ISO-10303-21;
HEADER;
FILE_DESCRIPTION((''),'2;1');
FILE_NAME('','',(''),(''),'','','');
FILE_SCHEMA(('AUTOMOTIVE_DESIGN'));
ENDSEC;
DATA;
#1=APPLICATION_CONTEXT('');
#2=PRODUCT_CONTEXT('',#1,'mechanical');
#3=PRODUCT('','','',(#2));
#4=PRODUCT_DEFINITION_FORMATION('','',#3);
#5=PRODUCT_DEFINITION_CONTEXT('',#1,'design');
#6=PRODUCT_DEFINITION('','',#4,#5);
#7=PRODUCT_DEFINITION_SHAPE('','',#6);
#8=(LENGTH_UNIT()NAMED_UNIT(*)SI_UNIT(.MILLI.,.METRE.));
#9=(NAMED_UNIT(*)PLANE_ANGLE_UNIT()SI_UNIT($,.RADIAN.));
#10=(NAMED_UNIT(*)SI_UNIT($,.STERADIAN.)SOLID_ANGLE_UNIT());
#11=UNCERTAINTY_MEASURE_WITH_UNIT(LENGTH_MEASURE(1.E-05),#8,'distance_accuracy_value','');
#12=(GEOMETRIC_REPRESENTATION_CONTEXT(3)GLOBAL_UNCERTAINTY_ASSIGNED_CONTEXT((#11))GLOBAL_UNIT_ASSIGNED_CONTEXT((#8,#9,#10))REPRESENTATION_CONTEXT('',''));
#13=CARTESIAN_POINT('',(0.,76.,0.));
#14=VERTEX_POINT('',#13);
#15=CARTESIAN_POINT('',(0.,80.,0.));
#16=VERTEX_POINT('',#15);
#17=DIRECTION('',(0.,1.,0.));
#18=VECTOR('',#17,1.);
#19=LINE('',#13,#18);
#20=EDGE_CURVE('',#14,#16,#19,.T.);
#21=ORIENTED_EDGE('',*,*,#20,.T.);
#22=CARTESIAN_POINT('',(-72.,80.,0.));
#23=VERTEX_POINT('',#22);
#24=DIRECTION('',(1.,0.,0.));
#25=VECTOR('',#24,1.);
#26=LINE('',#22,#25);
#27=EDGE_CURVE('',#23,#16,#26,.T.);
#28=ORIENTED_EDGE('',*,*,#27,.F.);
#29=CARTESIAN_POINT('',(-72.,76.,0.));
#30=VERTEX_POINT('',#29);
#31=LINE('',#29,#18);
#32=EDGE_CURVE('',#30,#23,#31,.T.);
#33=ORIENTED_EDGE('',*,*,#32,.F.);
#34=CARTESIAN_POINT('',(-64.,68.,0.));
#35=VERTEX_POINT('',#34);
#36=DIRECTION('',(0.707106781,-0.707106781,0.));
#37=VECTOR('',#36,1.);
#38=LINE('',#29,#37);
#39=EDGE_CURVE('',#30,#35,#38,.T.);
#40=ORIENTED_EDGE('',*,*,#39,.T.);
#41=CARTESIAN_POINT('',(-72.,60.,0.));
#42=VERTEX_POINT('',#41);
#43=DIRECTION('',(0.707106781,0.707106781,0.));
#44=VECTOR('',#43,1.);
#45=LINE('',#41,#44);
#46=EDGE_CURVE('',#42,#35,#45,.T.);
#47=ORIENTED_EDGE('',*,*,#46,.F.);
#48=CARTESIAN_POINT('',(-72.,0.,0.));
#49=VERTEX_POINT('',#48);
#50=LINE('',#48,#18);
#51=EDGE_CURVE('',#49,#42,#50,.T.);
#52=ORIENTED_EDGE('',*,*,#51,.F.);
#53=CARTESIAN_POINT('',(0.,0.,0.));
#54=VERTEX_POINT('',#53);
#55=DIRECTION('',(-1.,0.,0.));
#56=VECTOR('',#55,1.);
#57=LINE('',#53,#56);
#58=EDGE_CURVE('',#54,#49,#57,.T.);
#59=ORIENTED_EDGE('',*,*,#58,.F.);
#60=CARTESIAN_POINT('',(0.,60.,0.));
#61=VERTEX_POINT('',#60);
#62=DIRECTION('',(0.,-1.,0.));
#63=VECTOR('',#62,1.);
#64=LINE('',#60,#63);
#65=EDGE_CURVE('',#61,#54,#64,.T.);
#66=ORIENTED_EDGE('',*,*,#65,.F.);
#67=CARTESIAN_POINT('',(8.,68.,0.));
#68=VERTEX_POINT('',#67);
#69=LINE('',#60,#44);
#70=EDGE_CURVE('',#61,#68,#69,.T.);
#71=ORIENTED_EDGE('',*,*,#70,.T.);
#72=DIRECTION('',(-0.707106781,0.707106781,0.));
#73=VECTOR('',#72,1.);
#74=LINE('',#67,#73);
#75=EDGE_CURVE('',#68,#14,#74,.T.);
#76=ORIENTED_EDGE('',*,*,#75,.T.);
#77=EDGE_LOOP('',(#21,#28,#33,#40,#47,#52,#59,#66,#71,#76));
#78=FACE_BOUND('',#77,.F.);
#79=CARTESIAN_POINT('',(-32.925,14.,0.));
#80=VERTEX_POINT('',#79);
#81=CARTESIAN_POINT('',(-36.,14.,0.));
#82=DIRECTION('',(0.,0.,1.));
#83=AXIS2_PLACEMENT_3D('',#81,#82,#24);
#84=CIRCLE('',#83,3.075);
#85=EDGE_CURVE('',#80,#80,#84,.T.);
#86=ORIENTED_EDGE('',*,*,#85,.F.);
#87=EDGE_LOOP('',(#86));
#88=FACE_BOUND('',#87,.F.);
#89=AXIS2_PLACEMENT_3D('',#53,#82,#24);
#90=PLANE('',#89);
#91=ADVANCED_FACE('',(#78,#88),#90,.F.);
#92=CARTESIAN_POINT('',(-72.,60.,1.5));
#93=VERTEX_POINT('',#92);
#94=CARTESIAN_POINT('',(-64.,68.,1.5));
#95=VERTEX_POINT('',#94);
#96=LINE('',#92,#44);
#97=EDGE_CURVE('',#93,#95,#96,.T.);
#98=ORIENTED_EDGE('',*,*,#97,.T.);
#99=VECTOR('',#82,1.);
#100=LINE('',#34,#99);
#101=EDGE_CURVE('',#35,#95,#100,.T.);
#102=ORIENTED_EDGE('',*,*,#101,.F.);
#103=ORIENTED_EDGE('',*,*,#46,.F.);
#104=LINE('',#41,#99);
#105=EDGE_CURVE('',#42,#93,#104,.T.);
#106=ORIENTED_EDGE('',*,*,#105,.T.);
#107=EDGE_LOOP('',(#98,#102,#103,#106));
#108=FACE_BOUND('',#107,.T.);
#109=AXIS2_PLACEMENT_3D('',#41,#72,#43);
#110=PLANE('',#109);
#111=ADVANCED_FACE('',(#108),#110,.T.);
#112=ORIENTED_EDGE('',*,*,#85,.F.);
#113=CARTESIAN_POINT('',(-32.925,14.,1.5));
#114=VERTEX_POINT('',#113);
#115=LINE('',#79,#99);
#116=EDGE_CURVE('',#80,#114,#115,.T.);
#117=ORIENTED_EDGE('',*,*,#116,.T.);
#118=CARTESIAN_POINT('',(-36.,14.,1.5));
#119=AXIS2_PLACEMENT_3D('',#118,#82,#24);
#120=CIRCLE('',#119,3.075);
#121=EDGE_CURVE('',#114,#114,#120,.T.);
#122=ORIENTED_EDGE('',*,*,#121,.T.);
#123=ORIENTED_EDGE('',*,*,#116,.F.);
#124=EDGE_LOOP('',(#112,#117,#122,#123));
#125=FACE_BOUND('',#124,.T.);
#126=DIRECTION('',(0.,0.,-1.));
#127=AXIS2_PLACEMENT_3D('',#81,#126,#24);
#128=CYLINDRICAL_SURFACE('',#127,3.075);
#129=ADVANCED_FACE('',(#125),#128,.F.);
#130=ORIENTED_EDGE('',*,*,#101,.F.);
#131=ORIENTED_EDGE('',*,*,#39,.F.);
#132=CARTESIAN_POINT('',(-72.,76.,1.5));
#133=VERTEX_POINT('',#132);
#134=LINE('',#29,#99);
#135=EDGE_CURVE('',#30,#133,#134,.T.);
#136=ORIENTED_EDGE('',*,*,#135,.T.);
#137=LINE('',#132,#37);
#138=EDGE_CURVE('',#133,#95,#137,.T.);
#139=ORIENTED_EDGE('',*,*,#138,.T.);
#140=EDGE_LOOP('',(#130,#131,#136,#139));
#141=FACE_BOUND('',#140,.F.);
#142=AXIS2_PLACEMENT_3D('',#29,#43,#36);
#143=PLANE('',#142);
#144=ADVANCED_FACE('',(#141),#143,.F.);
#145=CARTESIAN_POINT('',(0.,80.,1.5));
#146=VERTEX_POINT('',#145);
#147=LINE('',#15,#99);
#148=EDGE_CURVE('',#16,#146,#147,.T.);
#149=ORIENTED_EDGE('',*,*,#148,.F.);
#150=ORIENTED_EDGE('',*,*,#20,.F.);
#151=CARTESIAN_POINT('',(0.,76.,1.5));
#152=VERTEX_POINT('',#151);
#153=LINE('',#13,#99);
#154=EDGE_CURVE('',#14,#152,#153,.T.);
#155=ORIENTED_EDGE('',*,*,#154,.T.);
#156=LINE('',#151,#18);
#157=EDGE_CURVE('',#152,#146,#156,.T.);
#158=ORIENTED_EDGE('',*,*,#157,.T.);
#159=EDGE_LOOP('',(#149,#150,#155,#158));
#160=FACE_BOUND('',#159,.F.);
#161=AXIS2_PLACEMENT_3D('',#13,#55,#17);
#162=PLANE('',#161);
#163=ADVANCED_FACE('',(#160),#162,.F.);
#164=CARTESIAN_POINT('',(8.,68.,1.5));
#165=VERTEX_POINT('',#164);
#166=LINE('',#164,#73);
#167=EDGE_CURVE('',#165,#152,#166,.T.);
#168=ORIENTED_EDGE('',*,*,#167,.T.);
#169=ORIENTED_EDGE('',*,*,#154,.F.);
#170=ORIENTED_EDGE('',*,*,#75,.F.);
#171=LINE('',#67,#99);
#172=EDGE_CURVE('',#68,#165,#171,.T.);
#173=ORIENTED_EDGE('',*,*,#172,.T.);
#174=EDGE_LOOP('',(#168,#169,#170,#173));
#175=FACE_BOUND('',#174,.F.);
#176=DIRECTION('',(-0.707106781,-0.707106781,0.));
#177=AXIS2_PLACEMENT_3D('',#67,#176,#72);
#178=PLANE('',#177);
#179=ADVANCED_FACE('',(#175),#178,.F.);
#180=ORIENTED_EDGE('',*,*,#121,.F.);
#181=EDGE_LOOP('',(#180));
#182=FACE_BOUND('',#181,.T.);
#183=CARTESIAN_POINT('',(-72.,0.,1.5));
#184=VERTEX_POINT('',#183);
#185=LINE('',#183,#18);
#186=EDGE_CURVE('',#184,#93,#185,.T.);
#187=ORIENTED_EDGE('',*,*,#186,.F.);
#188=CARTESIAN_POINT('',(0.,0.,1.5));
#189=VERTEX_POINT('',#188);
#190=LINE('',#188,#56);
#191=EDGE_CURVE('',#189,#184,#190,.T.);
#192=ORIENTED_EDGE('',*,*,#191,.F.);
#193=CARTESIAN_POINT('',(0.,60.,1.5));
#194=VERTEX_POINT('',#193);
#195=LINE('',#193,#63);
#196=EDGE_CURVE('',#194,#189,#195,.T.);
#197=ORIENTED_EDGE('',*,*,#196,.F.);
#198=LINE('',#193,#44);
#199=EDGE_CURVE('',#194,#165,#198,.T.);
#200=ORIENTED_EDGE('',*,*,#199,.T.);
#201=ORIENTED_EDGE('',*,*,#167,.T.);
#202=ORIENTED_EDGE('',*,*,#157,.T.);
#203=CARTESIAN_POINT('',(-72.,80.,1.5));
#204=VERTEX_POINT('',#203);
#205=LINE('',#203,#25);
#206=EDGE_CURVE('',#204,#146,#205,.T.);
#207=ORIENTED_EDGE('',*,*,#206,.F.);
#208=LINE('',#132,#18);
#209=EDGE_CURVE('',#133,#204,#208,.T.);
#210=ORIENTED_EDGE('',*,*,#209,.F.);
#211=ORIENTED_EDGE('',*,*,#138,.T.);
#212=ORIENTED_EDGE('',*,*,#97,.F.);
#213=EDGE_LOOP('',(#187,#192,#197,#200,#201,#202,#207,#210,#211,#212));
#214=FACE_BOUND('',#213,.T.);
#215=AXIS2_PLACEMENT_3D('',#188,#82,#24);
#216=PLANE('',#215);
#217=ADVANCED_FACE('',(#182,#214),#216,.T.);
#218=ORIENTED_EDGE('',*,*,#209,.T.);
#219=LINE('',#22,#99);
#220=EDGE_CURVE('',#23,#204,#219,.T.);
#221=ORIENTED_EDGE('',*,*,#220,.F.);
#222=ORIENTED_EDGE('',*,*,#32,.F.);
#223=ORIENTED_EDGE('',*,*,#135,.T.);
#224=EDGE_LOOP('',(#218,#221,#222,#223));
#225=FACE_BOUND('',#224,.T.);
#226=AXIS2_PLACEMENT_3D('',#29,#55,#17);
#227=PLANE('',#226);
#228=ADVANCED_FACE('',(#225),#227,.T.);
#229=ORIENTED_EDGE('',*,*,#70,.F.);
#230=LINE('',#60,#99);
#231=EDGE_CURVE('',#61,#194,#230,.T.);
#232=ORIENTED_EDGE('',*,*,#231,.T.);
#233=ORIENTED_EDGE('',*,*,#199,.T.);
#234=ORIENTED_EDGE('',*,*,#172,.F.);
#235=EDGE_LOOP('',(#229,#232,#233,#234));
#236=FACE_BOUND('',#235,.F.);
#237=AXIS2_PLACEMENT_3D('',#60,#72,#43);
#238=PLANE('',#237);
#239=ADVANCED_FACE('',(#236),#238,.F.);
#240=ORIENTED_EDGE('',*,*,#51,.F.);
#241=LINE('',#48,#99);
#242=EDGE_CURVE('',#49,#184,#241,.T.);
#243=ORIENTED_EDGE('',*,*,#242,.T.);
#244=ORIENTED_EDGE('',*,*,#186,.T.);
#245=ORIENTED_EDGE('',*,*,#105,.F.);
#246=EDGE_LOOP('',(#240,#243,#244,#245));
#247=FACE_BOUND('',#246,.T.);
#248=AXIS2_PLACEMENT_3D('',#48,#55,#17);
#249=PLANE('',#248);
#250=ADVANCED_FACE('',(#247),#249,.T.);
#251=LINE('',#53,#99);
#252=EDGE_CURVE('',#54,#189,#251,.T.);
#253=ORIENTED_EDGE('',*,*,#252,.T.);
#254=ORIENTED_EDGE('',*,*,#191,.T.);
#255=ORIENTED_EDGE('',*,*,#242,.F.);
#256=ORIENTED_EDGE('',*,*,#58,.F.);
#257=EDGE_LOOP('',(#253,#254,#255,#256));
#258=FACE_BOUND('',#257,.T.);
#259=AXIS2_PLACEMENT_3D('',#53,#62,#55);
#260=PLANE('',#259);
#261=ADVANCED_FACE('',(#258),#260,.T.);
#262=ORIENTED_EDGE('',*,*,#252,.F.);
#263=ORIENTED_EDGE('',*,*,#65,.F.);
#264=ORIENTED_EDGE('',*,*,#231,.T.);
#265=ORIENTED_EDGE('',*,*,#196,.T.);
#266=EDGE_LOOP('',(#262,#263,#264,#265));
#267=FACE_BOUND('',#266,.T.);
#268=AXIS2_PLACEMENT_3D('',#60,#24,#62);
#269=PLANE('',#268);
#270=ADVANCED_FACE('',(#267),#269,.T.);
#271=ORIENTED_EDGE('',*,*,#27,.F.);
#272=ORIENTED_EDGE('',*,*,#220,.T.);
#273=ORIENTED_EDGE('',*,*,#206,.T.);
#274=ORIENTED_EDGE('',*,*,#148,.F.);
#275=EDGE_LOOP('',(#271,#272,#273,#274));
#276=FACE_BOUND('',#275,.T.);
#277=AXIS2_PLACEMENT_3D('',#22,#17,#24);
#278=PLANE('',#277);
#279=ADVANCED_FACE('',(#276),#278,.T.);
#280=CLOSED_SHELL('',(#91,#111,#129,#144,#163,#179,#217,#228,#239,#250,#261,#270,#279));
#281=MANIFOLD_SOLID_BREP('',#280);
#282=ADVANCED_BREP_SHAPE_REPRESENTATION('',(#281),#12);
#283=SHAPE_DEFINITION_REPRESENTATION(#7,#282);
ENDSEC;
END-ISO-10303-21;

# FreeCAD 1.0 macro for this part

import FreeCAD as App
import Part
import Sketcher
from FreeCAD import Vector
Q = App.Units.Quantity


def add_polygon(sketch, points):
    """Adds a closed chain of lines whose ends are joined by coincident constraints."""
    first, n = sketch.GeometryCount, len(points)
    for a, b in zip(points, points[1:] + points[:1]):
        sketch.addGeometry(Part.LineSegment(App.Vector(*a, 0), App.Vector(*b, 0)), False)
    for i in range(n):
        sketch.addConstraint(Sketcher.Constraint("Coincident", first + i, 2, first + (i + 1) % n, 1))

doc = App.newDocument("Part")
params = doc.addObject("Spreadsheet::Sheet", "Params")
for row, (alias, value) in enumerate([
    ("sketch1_diameter", "6.15 mm"),
    ("sketch1_width", "72 mm"),
    ("sketch1_height", "60 mm"),
    ("pad1_length", "1.5 mm"),
], start=1):
    params.set(f"A{row}", alias)
    params.set(f"B{row}", "=" + value)
    params.setAlias(f"B{row}", alias)

body = doc.addObject("PartDesign::Body", "Body")

sketch1 = body.newObject("Sketcher::SketchObject", "Sketch")
sketch1.AttachmentSupport = (doc.getObject("XY_Plane"), [""])
sketch1.MapMode = "FlatFace"
add_polygon(sketch1, [(-72, 0), (0, 0), (0, 60), (8, 68), (0, 76), (0, 80), (-72, 80), (-72, 76), (-64, 68), (-72, 60)])
sketch1.addGeometry(Part.Circle(Vector(-36, 14, 0), Vector(0, 0, 1), 3.075), False)
sketch1.addConstraint([
    Sketcher.Constraint("Horizontal", 0),
    Sketcher.Constraint("Vertical", 1),
    Sketcher.Constraint("Vertical", 4),
    Sketcher.Constraint("Horizontal", 5),
    Sketcher.Constraint("Vertical", 6),
    Sketcher.Constraint("Vertical", 9),
    Sketcher.Constraint("Coincident", 0, 2, -1, 1),
    Sketcher.Constraint("PointOnObject", 3, 2, -2),
    Sketcher.Constraint("Perpendicular", 2, 3),
    Sketcher.Constraint("Parallel", 3, 7),
    Sketcher.Constraint("Perpendicular", 7, 8),
    Sketcher.Constraint("Horizontal", 3, 2, 6, 2),
    Sketcher.Constraint("Horizontal", 2, 2, 7, 2),
    Sketcher.Constraint("Horizontal", 1, 2, 8, 2),
    Sketcher.Constraint("Equal", 2, 3),
    Sketcher.Constraint("Diameter", 10, Q("6.15 mm")),
    Sketcher.Constraint("DistanceX", 0, 1, 0, 2, Q("72 mm")),
    Sketcher.Constraint("DistanceY", 1, 1, 1, 2, Q("60 mm")),
    Sketcher.Constraint("DistanceX", 10, 3, -1, 1, Q("36 mm")),
    Sketcher.Constraint("DistanceY", -1, 1, 10, 3, Q("14 mm")),
    Sketcher.Constraint("DistanceY", -1, 1, 4, 2, Q("80 mm")),
    Sketcher.Constraint("DistanceX", 5, 2, 2, 2, Q("80 mm")),
])
sketch1.setExpression("Constraints[25]", "Params.sketch1_diameter")
sketch1.setExpression("Constraints[26]", "Params.sketch1_width")
sketch1.setExpression("Constraints[27]", "Params.sketch1_height")
pad1 = body.newObject("PartDesign::Pad", "Pad")
pad1.Profile = sketch1
pad1.setExpression("Length", "Params.pad1_length")

doc.recompute()
